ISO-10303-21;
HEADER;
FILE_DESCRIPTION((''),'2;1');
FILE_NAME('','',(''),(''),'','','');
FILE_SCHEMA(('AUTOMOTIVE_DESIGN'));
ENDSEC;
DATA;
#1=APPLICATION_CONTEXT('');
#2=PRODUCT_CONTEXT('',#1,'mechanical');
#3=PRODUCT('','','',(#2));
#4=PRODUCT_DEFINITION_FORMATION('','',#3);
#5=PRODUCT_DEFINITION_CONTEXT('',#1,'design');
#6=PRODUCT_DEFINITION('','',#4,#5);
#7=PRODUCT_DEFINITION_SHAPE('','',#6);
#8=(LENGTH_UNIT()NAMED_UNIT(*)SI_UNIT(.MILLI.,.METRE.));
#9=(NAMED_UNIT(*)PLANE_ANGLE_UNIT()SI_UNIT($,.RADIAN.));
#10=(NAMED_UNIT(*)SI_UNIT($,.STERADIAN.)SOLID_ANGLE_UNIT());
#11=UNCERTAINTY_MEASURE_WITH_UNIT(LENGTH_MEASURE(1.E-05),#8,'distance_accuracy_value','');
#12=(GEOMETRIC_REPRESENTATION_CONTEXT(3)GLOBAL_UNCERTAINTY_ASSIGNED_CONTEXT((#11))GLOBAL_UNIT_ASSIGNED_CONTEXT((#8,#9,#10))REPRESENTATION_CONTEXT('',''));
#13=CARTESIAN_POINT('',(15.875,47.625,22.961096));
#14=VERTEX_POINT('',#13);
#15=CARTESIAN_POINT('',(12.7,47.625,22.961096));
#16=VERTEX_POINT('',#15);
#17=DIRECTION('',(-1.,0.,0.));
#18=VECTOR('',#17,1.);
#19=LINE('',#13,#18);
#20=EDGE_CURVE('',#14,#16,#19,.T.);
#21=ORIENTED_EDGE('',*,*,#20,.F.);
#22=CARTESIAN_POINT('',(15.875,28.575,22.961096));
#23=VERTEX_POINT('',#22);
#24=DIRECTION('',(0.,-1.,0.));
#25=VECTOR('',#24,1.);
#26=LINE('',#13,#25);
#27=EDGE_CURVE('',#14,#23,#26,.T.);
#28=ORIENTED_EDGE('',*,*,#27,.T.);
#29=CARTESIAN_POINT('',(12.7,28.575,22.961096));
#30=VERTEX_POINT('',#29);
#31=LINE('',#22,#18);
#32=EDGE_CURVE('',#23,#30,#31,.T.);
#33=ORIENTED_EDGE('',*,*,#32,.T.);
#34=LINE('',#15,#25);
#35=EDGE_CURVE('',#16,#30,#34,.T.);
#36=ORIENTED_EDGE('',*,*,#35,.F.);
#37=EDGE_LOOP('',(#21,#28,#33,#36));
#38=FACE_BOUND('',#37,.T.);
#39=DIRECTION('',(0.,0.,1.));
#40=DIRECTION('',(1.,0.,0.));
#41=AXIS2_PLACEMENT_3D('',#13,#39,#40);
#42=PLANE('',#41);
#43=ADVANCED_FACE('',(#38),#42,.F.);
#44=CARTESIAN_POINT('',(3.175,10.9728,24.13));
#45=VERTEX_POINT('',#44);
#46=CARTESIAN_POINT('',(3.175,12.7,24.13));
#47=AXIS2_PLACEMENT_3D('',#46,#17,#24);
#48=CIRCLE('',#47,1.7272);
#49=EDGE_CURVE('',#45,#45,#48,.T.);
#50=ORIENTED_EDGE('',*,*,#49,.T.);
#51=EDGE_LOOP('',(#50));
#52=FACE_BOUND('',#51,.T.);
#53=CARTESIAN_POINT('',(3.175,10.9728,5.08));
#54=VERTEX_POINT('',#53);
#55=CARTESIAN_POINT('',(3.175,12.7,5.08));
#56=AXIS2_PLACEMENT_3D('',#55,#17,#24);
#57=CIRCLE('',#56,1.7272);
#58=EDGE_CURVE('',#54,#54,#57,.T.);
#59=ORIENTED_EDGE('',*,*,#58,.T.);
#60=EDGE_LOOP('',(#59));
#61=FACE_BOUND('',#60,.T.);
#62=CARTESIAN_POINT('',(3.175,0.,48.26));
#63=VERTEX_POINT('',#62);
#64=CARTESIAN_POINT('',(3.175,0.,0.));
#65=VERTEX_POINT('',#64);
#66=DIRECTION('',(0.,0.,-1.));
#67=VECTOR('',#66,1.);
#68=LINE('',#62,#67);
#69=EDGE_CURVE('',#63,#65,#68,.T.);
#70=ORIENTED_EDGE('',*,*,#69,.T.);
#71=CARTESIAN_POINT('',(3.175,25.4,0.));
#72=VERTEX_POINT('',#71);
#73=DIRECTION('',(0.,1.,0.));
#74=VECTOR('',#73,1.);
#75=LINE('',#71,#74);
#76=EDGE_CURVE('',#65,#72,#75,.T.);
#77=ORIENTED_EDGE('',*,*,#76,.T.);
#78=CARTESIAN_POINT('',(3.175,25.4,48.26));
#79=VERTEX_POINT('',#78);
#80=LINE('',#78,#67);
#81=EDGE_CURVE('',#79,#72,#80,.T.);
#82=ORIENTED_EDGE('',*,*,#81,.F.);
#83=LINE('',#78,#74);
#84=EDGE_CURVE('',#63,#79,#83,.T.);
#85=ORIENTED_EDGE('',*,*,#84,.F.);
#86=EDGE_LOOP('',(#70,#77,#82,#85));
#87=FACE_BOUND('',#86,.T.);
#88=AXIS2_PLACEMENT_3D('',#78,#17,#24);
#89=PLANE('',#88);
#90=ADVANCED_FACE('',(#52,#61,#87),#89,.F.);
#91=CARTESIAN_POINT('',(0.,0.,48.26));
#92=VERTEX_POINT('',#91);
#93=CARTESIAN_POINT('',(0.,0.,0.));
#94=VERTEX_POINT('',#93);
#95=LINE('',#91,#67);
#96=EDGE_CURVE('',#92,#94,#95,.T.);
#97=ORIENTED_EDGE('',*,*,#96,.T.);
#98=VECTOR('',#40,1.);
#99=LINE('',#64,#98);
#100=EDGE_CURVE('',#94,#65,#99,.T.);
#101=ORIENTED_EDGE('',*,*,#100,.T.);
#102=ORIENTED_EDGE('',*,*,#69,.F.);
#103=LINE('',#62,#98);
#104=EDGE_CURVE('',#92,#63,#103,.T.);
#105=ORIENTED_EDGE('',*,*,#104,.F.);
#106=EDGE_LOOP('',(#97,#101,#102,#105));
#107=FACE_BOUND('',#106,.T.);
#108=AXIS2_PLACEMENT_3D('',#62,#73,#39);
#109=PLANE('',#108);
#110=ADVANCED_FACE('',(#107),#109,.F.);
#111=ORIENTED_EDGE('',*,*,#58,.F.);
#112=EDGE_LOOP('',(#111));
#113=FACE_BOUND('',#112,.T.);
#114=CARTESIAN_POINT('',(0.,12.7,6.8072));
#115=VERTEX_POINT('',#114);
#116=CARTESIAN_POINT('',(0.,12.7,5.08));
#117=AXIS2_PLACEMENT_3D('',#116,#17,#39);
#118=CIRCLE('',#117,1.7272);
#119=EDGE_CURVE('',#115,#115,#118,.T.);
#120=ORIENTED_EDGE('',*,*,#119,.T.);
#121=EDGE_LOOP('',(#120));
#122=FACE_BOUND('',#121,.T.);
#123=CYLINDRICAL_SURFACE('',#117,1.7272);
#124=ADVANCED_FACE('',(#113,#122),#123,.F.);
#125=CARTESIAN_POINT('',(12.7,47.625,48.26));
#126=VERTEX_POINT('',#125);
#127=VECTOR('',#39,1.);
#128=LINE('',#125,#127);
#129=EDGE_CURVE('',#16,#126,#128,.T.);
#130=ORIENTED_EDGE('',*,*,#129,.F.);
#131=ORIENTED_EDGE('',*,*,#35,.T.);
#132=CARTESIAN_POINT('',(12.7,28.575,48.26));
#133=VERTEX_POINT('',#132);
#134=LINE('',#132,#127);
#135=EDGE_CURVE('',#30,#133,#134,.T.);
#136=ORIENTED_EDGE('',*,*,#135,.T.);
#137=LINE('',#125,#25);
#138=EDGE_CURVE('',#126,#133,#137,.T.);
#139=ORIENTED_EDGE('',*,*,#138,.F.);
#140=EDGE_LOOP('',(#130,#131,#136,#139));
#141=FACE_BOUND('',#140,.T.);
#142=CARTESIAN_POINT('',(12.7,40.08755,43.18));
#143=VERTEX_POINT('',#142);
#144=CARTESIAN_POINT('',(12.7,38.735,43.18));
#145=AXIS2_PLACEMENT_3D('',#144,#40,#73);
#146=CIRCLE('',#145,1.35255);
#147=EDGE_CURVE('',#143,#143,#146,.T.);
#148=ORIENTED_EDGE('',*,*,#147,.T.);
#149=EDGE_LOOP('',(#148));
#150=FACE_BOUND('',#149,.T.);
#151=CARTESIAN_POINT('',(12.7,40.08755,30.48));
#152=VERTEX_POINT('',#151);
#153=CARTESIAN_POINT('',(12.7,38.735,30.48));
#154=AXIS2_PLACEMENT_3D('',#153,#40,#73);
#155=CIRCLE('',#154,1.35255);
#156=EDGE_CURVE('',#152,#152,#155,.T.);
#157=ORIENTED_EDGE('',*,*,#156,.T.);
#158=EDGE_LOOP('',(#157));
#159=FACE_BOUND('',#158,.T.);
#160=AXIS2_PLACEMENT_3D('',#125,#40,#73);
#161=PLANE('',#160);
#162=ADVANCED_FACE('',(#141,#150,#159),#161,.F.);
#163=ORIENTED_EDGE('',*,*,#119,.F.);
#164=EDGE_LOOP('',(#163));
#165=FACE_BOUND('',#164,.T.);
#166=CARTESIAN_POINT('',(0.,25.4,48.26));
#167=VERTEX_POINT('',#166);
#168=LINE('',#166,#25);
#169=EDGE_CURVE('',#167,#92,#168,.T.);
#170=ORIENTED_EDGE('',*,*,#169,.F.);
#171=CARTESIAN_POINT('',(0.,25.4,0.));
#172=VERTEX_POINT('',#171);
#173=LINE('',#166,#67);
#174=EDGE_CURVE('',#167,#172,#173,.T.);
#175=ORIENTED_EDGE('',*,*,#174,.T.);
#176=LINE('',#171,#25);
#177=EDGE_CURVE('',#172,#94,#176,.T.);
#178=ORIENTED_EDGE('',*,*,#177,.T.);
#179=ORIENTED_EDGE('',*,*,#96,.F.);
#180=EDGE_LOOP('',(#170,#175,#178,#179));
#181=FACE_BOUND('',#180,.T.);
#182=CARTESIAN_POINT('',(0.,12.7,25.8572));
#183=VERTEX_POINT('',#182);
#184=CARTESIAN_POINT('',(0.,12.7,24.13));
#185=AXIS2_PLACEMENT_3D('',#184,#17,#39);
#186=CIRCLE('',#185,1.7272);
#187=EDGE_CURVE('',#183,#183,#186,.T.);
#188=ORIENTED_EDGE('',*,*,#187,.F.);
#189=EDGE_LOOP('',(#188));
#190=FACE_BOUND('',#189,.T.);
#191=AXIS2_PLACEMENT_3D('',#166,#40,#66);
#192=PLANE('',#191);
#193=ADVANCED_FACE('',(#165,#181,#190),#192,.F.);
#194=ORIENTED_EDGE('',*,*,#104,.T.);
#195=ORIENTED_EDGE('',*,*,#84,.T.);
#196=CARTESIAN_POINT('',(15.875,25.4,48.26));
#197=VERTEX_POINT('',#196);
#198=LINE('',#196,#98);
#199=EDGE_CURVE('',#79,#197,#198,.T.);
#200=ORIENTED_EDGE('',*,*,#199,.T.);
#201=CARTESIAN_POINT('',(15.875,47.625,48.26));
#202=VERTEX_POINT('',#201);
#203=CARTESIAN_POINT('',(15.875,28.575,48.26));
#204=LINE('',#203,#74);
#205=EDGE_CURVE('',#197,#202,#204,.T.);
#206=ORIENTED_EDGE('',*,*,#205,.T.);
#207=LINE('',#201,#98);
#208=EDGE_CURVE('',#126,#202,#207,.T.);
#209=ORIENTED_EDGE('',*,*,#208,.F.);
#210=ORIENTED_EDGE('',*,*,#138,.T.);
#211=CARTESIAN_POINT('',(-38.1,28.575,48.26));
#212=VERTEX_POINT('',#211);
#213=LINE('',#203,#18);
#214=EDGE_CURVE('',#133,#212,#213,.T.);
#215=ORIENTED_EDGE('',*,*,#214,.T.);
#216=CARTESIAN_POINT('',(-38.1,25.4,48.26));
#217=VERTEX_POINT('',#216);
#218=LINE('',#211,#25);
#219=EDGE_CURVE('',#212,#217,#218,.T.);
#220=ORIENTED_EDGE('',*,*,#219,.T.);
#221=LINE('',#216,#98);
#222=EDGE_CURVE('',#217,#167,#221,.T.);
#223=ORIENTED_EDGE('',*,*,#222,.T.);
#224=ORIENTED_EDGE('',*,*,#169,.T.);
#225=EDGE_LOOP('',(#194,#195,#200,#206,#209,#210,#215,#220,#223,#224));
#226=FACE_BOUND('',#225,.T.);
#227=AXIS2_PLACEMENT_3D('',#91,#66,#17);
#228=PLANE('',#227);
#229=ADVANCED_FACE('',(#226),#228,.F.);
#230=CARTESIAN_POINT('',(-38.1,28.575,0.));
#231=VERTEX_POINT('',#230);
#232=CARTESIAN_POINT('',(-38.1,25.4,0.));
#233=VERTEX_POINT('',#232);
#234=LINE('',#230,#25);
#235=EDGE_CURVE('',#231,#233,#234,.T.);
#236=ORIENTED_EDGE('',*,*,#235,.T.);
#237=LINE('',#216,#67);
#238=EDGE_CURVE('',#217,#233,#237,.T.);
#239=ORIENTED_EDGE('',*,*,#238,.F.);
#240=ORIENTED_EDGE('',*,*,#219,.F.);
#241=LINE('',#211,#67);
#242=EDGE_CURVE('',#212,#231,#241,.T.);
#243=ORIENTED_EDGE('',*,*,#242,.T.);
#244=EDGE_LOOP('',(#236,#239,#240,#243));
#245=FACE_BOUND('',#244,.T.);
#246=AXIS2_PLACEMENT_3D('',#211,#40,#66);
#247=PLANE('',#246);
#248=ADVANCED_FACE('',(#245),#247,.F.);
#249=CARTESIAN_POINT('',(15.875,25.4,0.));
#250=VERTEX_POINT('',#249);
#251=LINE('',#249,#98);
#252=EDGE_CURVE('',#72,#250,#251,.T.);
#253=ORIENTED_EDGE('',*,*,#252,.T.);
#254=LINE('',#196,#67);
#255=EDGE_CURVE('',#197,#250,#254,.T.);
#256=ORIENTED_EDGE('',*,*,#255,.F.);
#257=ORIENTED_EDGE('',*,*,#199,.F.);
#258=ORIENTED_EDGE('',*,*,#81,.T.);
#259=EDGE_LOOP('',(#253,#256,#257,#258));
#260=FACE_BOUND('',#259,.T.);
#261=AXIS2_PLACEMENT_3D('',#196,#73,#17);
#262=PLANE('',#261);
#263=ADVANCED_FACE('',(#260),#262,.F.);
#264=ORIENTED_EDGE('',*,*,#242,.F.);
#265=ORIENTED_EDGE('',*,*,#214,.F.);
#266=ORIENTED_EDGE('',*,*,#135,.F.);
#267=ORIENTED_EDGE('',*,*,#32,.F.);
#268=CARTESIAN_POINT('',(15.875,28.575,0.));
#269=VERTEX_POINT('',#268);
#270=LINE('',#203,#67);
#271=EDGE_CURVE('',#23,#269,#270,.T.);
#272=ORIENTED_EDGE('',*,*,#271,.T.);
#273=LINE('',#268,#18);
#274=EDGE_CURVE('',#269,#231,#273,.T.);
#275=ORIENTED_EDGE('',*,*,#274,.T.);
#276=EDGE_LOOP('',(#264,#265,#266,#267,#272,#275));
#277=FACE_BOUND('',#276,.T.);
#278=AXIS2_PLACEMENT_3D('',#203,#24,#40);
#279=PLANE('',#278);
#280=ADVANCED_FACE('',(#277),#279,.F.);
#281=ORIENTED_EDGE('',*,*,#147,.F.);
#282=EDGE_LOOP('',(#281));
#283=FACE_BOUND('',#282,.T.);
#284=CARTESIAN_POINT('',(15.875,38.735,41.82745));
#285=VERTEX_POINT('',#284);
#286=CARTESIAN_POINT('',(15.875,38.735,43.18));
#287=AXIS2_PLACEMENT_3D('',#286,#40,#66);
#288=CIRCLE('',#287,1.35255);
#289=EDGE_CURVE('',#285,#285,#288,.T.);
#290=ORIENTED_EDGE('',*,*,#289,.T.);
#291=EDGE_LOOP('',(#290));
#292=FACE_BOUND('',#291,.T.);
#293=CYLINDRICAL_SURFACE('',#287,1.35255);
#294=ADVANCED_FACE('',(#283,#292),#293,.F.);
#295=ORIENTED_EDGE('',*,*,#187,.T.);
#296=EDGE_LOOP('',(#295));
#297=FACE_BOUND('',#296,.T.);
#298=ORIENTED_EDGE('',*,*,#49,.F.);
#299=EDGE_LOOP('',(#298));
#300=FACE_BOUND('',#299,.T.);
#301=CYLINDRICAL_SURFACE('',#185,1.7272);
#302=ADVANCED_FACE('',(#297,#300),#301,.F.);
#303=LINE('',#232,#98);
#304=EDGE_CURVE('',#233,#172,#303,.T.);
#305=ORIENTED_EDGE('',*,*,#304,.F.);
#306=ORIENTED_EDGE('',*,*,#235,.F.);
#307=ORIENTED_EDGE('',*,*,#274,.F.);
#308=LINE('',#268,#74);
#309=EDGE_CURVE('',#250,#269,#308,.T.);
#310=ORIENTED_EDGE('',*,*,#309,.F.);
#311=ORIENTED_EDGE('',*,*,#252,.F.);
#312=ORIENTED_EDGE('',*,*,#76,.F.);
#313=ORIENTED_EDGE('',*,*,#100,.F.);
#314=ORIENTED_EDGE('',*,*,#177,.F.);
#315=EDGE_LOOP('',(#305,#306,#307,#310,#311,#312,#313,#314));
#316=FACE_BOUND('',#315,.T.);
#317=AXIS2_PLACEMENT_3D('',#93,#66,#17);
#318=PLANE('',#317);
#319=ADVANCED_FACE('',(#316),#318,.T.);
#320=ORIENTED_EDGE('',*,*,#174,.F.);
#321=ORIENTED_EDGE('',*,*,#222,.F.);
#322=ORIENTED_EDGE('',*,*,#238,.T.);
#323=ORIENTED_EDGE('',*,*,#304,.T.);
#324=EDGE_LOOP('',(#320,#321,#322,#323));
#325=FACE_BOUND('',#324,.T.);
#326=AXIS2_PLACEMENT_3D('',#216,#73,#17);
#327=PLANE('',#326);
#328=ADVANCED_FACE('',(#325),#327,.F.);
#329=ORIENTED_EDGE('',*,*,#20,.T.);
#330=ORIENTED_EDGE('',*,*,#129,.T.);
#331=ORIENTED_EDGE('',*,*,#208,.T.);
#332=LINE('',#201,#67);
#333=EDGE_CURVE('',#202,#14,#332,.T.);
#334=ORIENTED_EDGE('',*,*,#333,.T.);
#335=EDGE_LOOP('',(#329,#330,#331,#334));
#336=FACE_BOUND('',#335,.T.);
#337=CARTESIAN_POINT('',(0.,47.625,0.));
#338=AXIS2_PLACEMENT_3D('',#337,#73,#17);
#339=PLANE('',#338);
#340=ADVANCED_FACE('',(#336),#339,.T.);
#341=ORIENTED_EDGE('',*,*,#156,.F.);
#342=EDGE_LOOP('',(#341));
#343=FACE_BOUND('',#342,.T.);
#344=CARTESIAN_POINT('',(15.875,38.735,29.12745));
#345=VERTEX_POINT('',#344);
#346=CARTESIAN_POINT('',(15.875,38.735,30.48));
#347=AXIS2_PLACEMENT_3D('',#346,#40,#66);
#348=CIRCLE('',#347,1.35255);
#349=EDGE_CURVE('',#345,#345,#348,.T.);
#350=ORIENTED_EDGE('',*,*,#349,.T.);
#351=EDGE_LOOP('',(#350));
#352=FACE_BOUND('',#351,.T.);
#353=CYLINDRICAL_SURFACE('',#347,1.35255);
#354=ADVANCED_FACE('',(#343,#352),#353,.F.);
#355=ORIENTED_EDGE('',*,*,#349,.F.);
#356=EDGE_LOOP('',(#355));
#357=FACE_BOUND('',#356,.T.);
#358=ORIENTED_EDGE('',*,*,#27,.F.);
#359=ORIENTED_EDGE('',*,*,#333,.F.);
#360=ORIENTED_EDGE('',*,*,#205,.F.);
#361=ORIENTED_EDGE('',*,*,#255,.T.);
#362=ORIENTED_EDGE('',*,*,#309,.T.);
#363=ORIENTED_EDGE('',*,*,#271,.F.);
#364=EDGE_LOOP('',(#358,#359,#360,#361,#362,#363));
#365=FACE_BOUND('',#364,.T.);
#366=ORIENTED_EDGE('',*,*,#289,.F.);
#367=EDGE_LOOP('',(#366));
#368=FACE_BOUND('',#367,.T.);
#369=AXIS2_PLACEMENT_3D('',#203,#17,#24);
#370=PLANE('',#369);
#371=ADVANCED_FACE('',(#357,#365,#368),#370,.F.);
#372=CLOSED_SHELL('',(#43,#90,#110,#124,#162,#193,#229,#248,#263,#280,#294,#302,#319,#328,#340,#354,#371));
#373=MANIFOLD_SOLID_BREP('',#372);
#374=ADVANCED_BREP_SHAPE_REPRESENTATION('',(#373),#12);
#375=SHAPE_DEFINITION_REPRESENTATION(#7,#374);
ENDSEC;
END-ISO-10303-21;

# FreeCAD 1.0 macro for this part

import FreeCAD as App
import Part
import Sketcher
from FreeCAD import Vector
Q = App.Units.Quantity


def add_polygon(sketch, points):
    """Adds a closed chain of lines whose ends are joined by coincident constraints."""
    first, n = sketch.GeometryCount, len(points)
    for a, b in zip(points, points[1:] + points[:1]):
        sketch.addGeometry(Part.LineSegment(App.Vector(*a, 0), App.Vector(*b, 0)), False)
    for i in range(n):
        sketch.addConstraint(Sketcher.Constraint("Coincident", first + i, 2, first + (i + 1) % n, 1))

doc = App.newDocument("Part")
body = doc.addObject("PartDesign::Body", "Body")

# Sketch on XY plane
sketch1 = doc.addObject("Sketcher::SketchObject", "Sketch")
body.addObject(sketch1)
sketch1.AttachmentSupport = (doc.XY_Plane, [""])
sketch1.MapMode = "FlatFace"
add_polygon(sketch1, [(15.875, 28.575), (-38.1, 28.575), (-38.1, 25.4), (0, 25.4), (0, 0), (3.175, 0), (3.175, 25.4), (15.875, 25.4)])  # lines 0-7
sketch1.addConstraint([
    Sketcher.Constraint("Horizontal", 0),
    Sketcher.Constraint("Vertical", 1),
    Sketcher.Constraint("Horizontal", 2),
    Sketcher.Constraint("Vertical", 3),
    Sketcher.Constraint("Horizontal", 4),
    Sketcher.Constraint("Vertical", 5),
    Sketcher.Constraint("Horizontal", 6),
    Sketcher.Constraint("Vertical", 7),
    Sketcher.Constraint("Coincident", 3, 2, -1, 1),
    Sketcher.Constraint("Horizontal", 2, 2, 5, 2),
    Sketcher.Constraint("Equal", 4, 1),
    Sketcher.Constraint("DistanceY", 3, 2, 3, 1, Q("1 in")),
    Sketcher.Constraint("DistanceX", 2, 1, 2, 2, Q("1.5 in")),
    Sketcher.Constraint("DistanceX", 6, 1, 6, 2, Q("0.5 in")),
    Sketcher.Constraint("DistanceX", 0, 2, 0, 1, Q("2.125 in")),
])
pad1 = doc.addObject("PartDesign::Pad", "Pad")
body.addObject(pad1)
pad1.Profile = sketch1
pad1.Length = Q("1.9 in")

# Sketch on XZ plane
sketch2 = doc.addObject("Sketcher::SketchObject", "Sketch001")
body.addObject(sketch2)
sketch2.AttachmentSupport = (doc.XZ_Plane, [""])
sketch2.MapMode = "FlatFace"
sketch2.AttachmentOffset = App.Placement(Vector(0, 0, -1.125 * 25.4), App.Rotation())
add_polygon(sketch2, [(12.7, 22.961096), (12.7, 48.26), (15.875, 48.26), (15.875, 22.961096)])  # lines 0-3
sketch2.addConstraint([
    Sketcher.Constraint("Vertical", 0),
    Sketcher.Constraint("Horizontal", 1),
    Sketcher.Constraint("Vertical", 2),
    Sketcher.Constraint("Horizontal", 3),
    Sketcher.Constraint("DistanceX", -1, 1, 0, 2, Q("0.5 in")),
    Sketcher.Constraint("DistanceY", -1, 1, 0, 2, Q("1.9 in")),
    Sketcher.Constraint("DistanceX", 1, 1, 1, 2, Q("0.125 in")),
    Sketcher.Constraint("DistanceY", 0, 1, 0, 2, Q("25.298904 mm")),
])
pad2 = doc.addObject("PartDesign::Pad", "Pad001")
body.addObject(pad2)
pad2.Profile = sketch2
pad2.Length = Q("0.75 in")
pad2.Reversed = True

# Sketch on YZ plane
sketch3 = doc.addObject("Sketcher::SketchObject", "Sketch002")
body.addObject(sketch3)
sketch3.AttachmentSupport = (doc.YZ_Plane, [""])
sketch3.MapMode = "FlatFace"
sketch3.AttachmentOffset = App.Placement(Vector(0, 0, 0.625 * 25.4), App.Rotation())
sketch3.addGeometry([
    Part.Circle(Vector(38.735, 43.18, 0), Vector(0, 0, 1), 1.35255),
    Part.Circle(Vector(38.735, 30.48, 0), Vector(0, 0, 1), 1.35255),
], False)
sketch3.addConstraint([
    Sketcher.Constraint("Equal", 0, 1),
    Sketcher.Constraint("Vertical", 0, 3, 1, 3),
    Sketcher.Constraint("Diameter", 0, Q("0.1065 in")),
    Sketcher.Constraint("DistanceY", -1, 1, 0, 3, Q("1.7 in")),
    Sketcher.Constraint("DistanceY", -1, 1, 1, 3, Q("1.2 in")),
    Sketcher.Constraint("DistanceX", -1, 1, 0, 3, Q("1.525 in")),
])
doc.recompute()
hole = doc.addObject("PartDesign::Hole", "Hole")
body.addObject(hole)
hole.Profile = sketch3
hole.ThreadType = "None"
hole.Diameter = Q("0.1065 in")
hole.DepthType = "ThroughAll"

# Sketch on YZ plane
sketch4 = doc.addObject("Sketcher::SketchObject", "Sketch003")
body.addObject(sketch4)
sketch4.AttachmentSupport = (doc.YZ_Plane, [""])
sketch4.MapMode = "FlatFace"
sketch4.addGeometry([
    Part.Circle(Vector(12.7, 5.08, 0), Vector(0, 0, 1), 1.7272),
    Part.Circle(Vector(12.7, 24.13, 0), Vector(0, 0, 1), 1.7272),
], False)
sketch4.addConstraint([
    Sketcher.Constraint("Equal", 0, 1),
    Sketcher.Constraint("Vertical", 0, 3, 1, 3),
    Sketcher.Constraint("Diameter", 0, Q("0.136 in")),
    Sketcher.Constraint("DistanceX", -1, 1, 0, 3, Q("0.5 in")),
    Sketcher.Constraint("DistanceY", -1, 1, 0, 3, Q("0.2 in")),
    Sketcher.Constraint("DistanceY", -1, 1, 1, 3, Q("0.95 in")),
])
doc.recompute()
hole2 = doc.addObject("PartDesign::Hole", "Hole001")
body.addObject(hole2)
hole2.Profile = sketch4
hole2.ThreadType = "None"
hole2.Diameter = Q("0.136 in")
hole2.DepthType = "ThroughAll"
hole2.Reversed = True

doc.recompute()
